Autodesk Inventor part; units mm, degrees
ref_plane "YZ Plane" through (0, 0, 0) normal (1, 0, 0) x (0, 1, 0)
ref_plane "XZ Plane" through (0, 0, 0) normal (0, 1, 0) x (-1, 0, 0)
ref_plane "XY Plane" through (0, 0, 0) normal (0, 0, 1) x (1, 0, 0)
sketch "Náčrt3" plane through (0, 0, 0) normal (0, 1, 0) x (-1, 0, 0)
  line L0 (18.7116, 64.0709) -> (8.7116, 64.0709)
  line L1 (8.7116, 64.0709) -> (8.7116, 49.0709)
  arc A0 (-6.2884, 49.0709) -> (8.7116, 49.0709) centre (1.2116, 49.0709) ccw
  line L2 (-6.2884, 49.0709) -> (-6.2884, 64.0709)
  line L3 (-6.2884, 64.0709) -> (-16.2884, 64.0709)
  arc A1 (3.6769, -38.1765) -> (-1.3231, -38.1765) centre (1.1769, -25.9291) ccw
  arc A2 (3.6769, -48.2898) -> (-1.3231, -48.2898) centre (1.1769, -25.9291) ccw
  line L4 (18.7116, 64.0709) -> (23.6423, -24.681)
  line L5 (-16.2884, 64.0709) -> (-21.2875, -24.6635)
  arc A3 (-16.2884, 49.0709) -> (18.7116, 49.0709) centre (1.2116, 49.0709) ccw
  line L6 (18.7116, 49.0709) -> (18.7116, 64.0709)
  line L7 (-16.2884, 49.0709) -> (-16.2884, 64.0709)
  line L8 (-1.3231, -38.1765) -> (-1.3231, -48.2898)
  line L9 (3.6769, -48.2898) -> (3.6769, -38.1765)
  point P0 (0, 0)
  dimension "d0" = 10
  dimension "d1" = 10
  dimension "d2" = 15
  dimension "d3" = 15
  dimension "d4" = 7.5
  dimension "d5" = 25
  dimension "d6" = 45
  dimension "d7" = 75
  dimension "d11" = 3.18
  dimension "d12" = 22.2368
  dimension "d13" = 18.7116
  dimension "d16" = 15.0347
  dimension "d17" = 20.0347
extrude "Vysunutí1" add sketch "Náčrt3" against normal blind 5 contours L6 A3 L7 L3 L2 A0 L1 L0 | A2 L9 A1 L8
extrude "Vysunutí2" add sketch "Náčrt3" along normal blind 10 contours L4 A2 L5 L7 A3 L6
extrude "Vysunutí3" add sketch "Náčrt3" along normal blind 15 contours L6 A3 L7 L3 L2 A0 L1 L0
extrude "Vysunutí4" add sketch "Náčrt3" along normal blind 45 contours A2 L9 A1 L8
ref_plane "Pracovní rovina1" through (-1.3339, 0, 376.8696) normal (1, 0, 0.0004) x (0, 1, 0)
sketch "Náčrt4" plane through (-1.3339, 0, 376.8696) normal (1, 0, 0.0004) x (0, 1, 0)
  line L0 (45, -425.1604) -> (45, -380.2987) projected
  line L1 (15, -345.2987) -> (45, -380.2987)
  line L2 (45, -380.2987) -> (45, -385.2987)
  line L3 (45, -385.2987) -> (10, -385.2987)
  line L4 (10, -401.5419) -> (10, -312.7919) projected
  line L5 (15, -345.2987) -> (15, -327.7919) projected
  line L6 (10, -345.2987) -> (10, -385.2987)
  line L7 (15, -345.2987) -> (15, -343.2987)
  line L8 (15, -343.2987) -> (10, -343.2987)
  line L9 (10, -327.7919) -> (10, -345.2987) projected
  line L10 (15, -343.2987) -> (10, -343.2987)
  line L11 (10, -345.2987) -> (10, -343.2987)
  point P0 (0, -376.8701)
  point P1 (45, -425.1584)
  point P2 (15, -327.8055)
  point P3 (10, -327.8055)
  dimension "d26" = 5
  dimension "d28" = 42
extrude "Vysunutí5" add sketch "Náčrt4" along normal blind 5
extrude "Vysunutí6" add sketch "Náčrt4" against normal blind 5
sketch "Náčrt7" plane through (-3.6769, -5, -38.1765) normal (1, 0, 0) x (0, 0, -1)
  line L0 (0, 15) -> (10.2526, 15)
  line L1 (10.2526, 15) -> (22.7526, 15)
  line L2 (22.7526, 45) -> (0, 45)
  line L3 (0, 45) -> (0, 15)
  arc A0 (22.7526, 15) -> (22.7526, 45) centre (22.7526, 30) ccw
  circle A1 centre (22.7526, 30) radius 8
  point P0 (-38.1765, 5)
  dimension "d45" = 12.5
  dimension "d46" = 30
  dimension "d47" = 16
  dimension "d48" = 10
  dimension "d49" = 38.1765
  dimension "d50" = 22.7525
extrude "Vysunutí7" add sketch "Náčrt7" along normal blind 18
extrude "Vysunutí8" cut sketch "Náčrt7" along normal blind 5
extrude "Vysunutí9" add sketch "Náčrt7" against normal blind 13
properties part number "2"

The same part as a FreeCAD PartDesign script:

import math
import FreeCAD as App
import Part
import Sketcher

V = App.Vector
Q = App.Units.Quantity

doc = App.newDocument("Part")
body = doc.addObject("PartDesign::Body", "Body")
body.AllowCompound = True

sketch1 = body.newObject("Sketcher::SketchObject", "Sketch")
sketch1.AttachmentSupport = (doc.getObject("XZ_Plane"), [""])
sketch1.MapMode = "FlatFace"
sketch1.addGeometry([
    Part.LineSegment(V(-19, 49, 0), V(-19, 64, 0)),
    Part.LineSegment(V(-19, 64, 0), V(-9, 64, 0)),
    Part.LineSegment(V(-9, 64, 0), V(-9, 49, 0)),
    Part.ArcOfCircle(Part.Circle(V(-1, 49, 0), V(0, 0, 1), 8), math.radians(180), math.radians(360)),
    Part.LineSegment(V(6, 49, 0), V(6, 64, 0)),
    Part.LineSegment(V(6, 64, 0), V(16, 64, 0)),
    Part.LineSegment(V(16, 64, 0), V(16, 49, 0)),
    Part.ArcOfCircle(Part.Circle(V(-1, 49, 0), V(0, 0, 1), 18), math.radians(180), math.radians(360)),
    Part.ArcOfCircle(Part.Circle(V(-1, -26, 0), V(0, 0, 1), 23), math.radians(-84), math.radians(264)),
    Part.LineSegment(V(1, -48, 0), V(1, -38, 0)),
    Part.ArcOfCircle(Part.Circle(V(-1, -26, 0), V(0, 0, 1), 12), math.radians(-78), math.radians(258)),
    Part.LineSegment(V(-4, -38, 0), V(-4, -48, 0)),
], False)
sketch1.addConstraint([
    Sketcher.Constraint("Coincident", 0, 2, 1, 1),
    Sketcher.Constraint("Coincident", 1, 2, 2, 1),
    Sketcher.Constraint("Tangent", 2, 2, 3, 1),
    Sketcher.Constraint("Tangent", 3, 2, 4, 1),
    Sketcher.Constraint("Coincident", 4, 2, 5, 1),
    Sketcher.Constraint("Coincident", 5, 2, 6, 1),
    Sketcher.Constraint("Tangent", 6, 2, 7, 2),
    Sketcher.Constraint("Tangent", 7, 1, 0, 1),
    Sketcher.Constraint("Coincident", 8, 1, 9, 1),
    Sketcher.Constraint("Coincident", 9, 2, 10, 1),
    Sketcher.Constraint("Coincident", 10, 2, 11, 1),
    Sketcher.Constraint("Coincident", 11, 2, 8, 2),
    Sketcher.Constraint("Vertical", 0),
    Sketcher.Constraint("Horizontal", 1),
    Sketcher.Constraint("Vertical", 2),
    Sketcher.Constraint("Vertical", 4),
    Sketcher.Constraint("Horizontal", 5),
    Sketcher.Constraint("Vertical", 6),
    Sketcher.Constraint("Vertical", 9),
    Sketcher.Constraint("Vertical", 11),
    Sketcher.Constraint("Coincident", 7, 3, 3, 3),
    Sketcher.Constraint("Coincident", 10, 3, 8, 3),
    Sketcher.Constraint("Horizontal", 1, 2, 4, 2),
    Sketcher.Constraint("Horizontal", 9, 2, 10, 2),
    Sketcher.Constraint("Radius", 3, Q("7.5 mm")),
    Sketcher.Constraint("Radius", 8, Q("22.5 mm")),
    Sketcher.Constraint("Radius", 10, Q("12.5 mm")),
    Sketcher.Constraint("DistanceX", 1, 1, 1, 2, Q("10 mm")),
    Sketcher.Constraint("DistanceY", 0, 1, 0, 2, Q("15 mm")),
    Sketcher.Constraint("DistanceY", 8, 3, 3, 3, Q("75 mm")),
    Sketcher.Constraint("DistanceX", 10, 2, 9, 2, Q("5 mm")),
    Sketcher.Constraint("DistanceX", 0, 2, -1, 1, Q("18.7116 mm")),
    Sketcher.Constraint("DistanceY", -1, 1, 3, 3, Q("49.071 mm")),
    Sketcher.Constraint("DistanceX", 8, 3, -1, 1, Q("1.177 mm")),
])
pad1 = body.newObject("PartDesign::Pad", "Pad")
pad1.Profile = sketch1
pad1.Length = 5

sketch2 = body.newObject("Sketcher::SketchObject", "Sketch001")
sketch2.AttachmentSupport = (doc.getObject("XZ_Plane"), [""])
sketch2.MapMode = "FlatFace"
sketch2.addGeometry([
    Part.LineSegment(V(-24, -25, 0), V(-19, 64, 0)),
    Part.LineSegment(V(-19, 64, 0), V(-19, 49, 0)),
    Part.ArcOfCircle(Part.Circle(V(-1, 49, 0), V(0, 0, 1), 18), math.radians(180), math.radians(360)),
    Part.LineSegment(V(16, 49, 0), V(16, 64, 0)),
    Part.LineSegment(V(16, 64, 0), V(21, -25, 0)),
    Part.ArcOfCircle(Part.Circle(V(-1, -26, 0), V(0, 0, 1), 23), math.radians(3), math.radians(177)),
], False)
sketch2.addConstraint([
    Sketcher.Constraint("Coincident", 0, 2, 1, 1),
    Sketcher.Constraint("Tangent", 1, 2, 2, 1),
    Sketcher.Constraint("Tangent", 2, 2, 3, 1),
    Sketcher.Constraint("Coincident", 3, 2, 4, 1),
    Sketcher.Constraint("Tangent", 4, 2, 5, 1),
    Sketcher.Constraint("Tangent", 5, 2, 0, 1),
    Sketcher.Constraint("Vertical", 1),
    Sketcher.Constraint("Vertical", 3),
    Sketcher.Constraint("Horizontal", 0, 2, 3, 2),
    Sketcher.Constraint("Radius", 5, Q("22.5 mm")),
    Sketcher.Constraint("DistanceY", 1, 2, 1, 1, Q("15 mm")),
    Sketcher.Constraint("DistanceY", 5, 3, 2, 3, Q("75 mm")),
    Sketcher.Constraint("Radius", 2, Q("17.5 mm")),
    Sketcher.Constraint("DistanceX", 0, 2, -1, 1, Q("18.7116 mm")),
    Sketcher.Constraint("Angle", 0, Q("86.8201 deg")),
    Sketcher.Constraint("DistanceY", -1, 1, 2, 3, Q("49.071 mm")),
])
pad2 = body.newObject("PartDesign::Pad", "Pad001")
pad2.Profile = sketch2
pad2.Length = 10
pad2.Reversed = True

sketch3 = body.newObject("Sketcher::SketchObject", "Sketch002")
sketch3.AttachmentSupport = (doc.getObject("XZ_Plane"), [""])
sketch3.MapMode = "FlatFace"
sketch3.addGeometry([
    Part.LineSegment(V(-19, 49, 0), V(-19, 64, 0)),
    Part.LineSegment(V(-19, 64, 0), V(-9, 64, 0)),
    Part.LineSegment(V(-9, 64, 0), V(-9, 49, 0)),
    Part.ArcOfCircle(Part.Circle(V(-1, 49, 0), V(0, 0, 1), 8), math.radians(180), math.radians(360)),
    Part.LineSegment(V(6, 49, 0), V(6, 64, 0)),
    Part.LineSegment(V(6, 64, 0), V(16, 64, 0)),
    Part.LineSegment(V(16, 64, 0), V(16, 49, 0)),
    Part.ArcOfCircle(Part.Circle(V(-1, 49, 0), V(0, 0, 1), 18), math.radians(180), math.radians(360)),
], False)
sketch3.addConstraint([
    Sketcher.Constraint("Coincident", 0, 2, 1, 1),
    Sketcher.Constraint("Coincident", 1, 2, 2, 1),
    Sketcher.Constraint("Tangent", 2, 2, 3, 1),
    Sketcher.Constraint("Tangent", 3, 2, 4, 1),
    Sketcher.Constraint("Coincident", 4, 2, 5, 1),
    Sketcher.Constraint("Coincident", 5, 2, 6, 1),
    Sketcher.Constraint("Tangent", 6, 2, 7, 2),
    Sketcher.Constraint("Tangent", 7, 1, 0, 1),
    Sketcher.Constraint("Vertical", 0),
    Sketcher.Constraint("Horizontal", 1),
    Sketcher.Constraint("Vertical", 2),
    Sketcher.Constraint("Vertical", 4),
    Sketcher.Constraint("Horizontal", 5),
    Sketcher.Constraint("Vertical", 6),
    Sketcher.Constraint("Coincident", 7, 3, 3, 3),
    Sketcher.Constraint("Horizontal", 1, 2, 4, 2),
    Sketcher.Constraint("Radius", 3, Q("7.5 mm")),
    Sketcher.Constraint("DistanceX", 1, 1, 1, 2, Q("10 mm")),
    Sketcher.Constraint("DistanceY", 0, 1, 0, 2, Q("15 mm")),
    Sketcher.Constraint("DistanceX", 0, 2, -1, 1, Q("18.7116 mm")),
    Sketcher.Constraint("DistanceY", -1, 1, 3, 3, Q("49.071 mm")),
])
pad3 = body.newObject("PartDesign::Pad", "Pad002")
pad3.Profile = sketch3
pad3.Length = 15
pad3.Reversed = True

sketch4 = body.newObject("Sketcher::SketchObject", "Sketch003")
sketch4.AttachmentSupport = (doc.getObject("XZ_Plane"), [""])
sketch4.MapMode = "FlatFace"
sketch4.addGeometry([
    Part.ArcOfCircle(Part.Circle(V(-1, -26, 0), V(0, 0, 1), 23), math.radians(-84), math.radians(264)),
    Part.LineSegment(V(1, -48, 0), V(1, -38, 0)),
    Part.ArcOfCircle(Part.Circle(V(-1, -26, 0), V(0, 0, 1), 12), math.radians(-78), math.radians(258)),
    Part.LineSegment(V(-4, -38, 0), V(-4, -48, 0)),
], False)
sketch4.addConstraint([
    Sketcher.Constraint("Coincident", 0, 1, 1, 1),
    Sketcher.Constraint("Coincident", 1, 2, 2, 1),
    Sketcher.Constraint("Coincident", 2, 2, 3, 1),
    Sketcher.Constraint("Coincident", 3, 2, 0, 2),
    Sketcher.Constraint("Vertical", 1),
    Sketcher.Constraint("Vertical", 3),
    Sketcher.Constraint("Coincident", 2, 3, 0, 3),
    Sketcher.Constraint("Horizontal", 1, 2, 2, 2),
    Sketcher.Constraint("Radius", 0, Q("22.5 mm")),
    Sketcher.Constraint("Radius", 2, Q("12.5 mm")),
    Sketcher.Constraint("DistanceX", 2, 2, 1, 2, Q("5 mm")),
    Sketcher.Constraint("DistanceX", 0, 3, -1, 1, Q("1.177 mm")),
    Sketcher.Constraint("DistanceY", 0, 3, -1, 1, Q("25.929 mm")),
])
pad4 = body.newObject("PartDesign::Pad", "Pad003")
pad4.Profile = sketch4
pad4.Length = 45
pad4.Reversed = True

sketch5 = body.newObject("Sketcher::SketchObject", "Sketch004")
sketch5.Placement = App.Placement(V(-1.3339, 0, 376.8696), App.Rotation(V(0, 1, 0), V(-0.0004, 0, 0.99999992), V(0.99999992, 0, 0.0004), "ZXY"))
sketch5.addGeometry([
    Part.LineSegment(V(10, -385.3, 0), V(45, -385.3, 0)),
    Part.LineSegment(V(45, -385.3, 0), V(45, -380.3, 0)),
    Part.LineSegment(V(45, -380.3, 0), V(15, -345.3, 0)),
    Part.LineSegment(V(15, -345.3, 0), V(15, -343.3, 0)),
    Part.LineSegment(V(15, -343.3, 0), V(10, -343.3, 0)),
    Part.LineSegment(V(10, -343.3, 0), V(10, -385.3, 0)),
], False)
sketch5.addConstraint([
    Sketcher.Constraint("Coincident", 0, 2, 1, 1),
    Sketcher.Constraint("Coincident", 1, 2, 2, 1),
    Sketcher.Constraint("Coincident", 2, 2, 3, 1),
    Sketcher.Constraint("Coincident", 3, 2, 4, 1),
    Sketcher.Constraint("Coincident", 4, 2, 5, 1),
    Sketcher.Constraint("Coincident", 5, 2, 0, 1),
    Sketcher.Constraint("Horizontal", 0),
    Sketcher.Constraint("Vertical", 1),
    Sketcher.Constraint("Vertical", 3),
    Sketcher.Constraint("Horizontal", 4),
    Sketcher.Constraint("Vertical", 5),
    Sketcher.Constraint("Equal", 4, 1),
    Sketcher.Constraint("DistanceX", 4, 2, 4, 1, Q("5 mm")),
    Sketcher.Constraint("DistanceY", 5, 2, 5, 1, Q("42 mm")),
    Sketcher.Constraint("DistanceX", 0, 1, 0, 2, Q("35 mm")),
    Sketcher.Constraint("DistanceY", 3, 1, 3, 2, Q("2 mm")),
    Sketcher.Constraint("DistanceX", -1, 1, 0, 2, Q("45 mm")),
    Sketcher.Constraint("DistanceY", 0, 2, -1, 1, Q("385.2987 mm")),
])
pad5 = body.newObject("PartDesign::Pad", "Pad004")
pad5.Profile = sketch5
pad5.Length = 5

sketch6 = body.newObject("Sketcher::SketchObject", "Sketch005")
sketch6.Placement = App.Placement(V(-1.3339, 0, 376.8696), App.Rotation(V(0, 1, 0), V(-0.0004, 0, 0.99999992), V(0.99999992, 0, 0.0004), "ZXY"))
sketch6.addGeometry([
    Part.LineSegment(V(10, -385.3, 0), V(45, -385.3, 0)),
    Part.LineSegment(V(45, -385.3, 0), V(45, -380.3, 0)),
    Part.LineSegment(V(45, -380.3, 0), V(15, -345.3, 0)),
    Part.LineSegment(V(15, -345.3, 0), V(15, -343.3, 0)),
    Part.LineSegment(V(15, -343.3, 0), V(10, -343.3, 0)),
    Part.LineSegment(V(10, -343.3, 0), V(10, -385.3, 0)),
], False)
sketch6.addConstraint([
    Sketcher.Constraint("Coincident", 0, 2, 1, 1),
    Sketcher.Constraint("Coincident", 1, 2, 2, 1),
    Sketcher.Constraint("Coincident", 2, 2, 3, 1),
    Sketcher.Constraint("Coincident", 3, 2, 4, 1),
    Sketcher.Constraint("Coincident", 4, 2, 5, 1),
    Sketcher.Constraint("Coincident", 5, 2, 0, 1),
    Sketcher.Constraint("Horizontal", 0),
    Sketcher.Constraint("Vertical", 1),
    Sketcher.Constraint("Vertical", 3),
    Sketcher.Constraint("Horizontal", 4),
    Sketcher.Constraint("Vertical", 5),
    Sketcher.Constraint("Equal", 4, 1),
    Sketcher.Constraint("DistanceX", 4, 2, 4, 1, Q("5 mm")),
    Sketcher.Constraint("DistanceY", 5, 2, 5, 1, Q("42 mm")),
    Sketcher.Constraint("DistanceX", 0, 1, 0, 2, Q("35 mm")),
    Sketcher.Constraint("DistanceY", 3, 1, 3, 2, Q("2 mm")),
    Sketcher.Constraint("DistanceX", -1, 1, 0, 2, Q("45 mm")),
    Sketcher.Constraint("DistanceY", 0, 2, -1, 1, Q("385.2987 mm")),
])
pad6 = body.newObject("PartDesign::Pad", "Pad005")
pad6.Profile = sketch6
pad6.Length = 5
pad6.Reversed = True

sketch7 = body.newObject("Sketcher::SketchObject", "Sketch006")
sketch7.AttachmentSupport = (doc.getObject("YZ_Plane"), [""])
sketch7.MapMode = "FlatFace"
sketch7.AttachmentOffset = App.Placement(V(0, 0, -3.6769), App.Rotation())
sketch7.addGeometry([
    Part.LineSegment(V(40, -38, 0), V(10, -38, 0)),
    Part.LineSegment(V(10, -38, 0), V(10, -61, 0)),
    Part.ArcOfCircle(Part.Circle(V(25, -61, 0), V(0, 0, 1), 15), math.radians(180), math.radians(360)),
    Part.LineSegment(V(40, -61, 0), V(40, -38, 0)),
    Part.Circle(V(25, -61, 0), V(0, 0, 1), 8),
], False)
sketch7.addConstraint([
    Sketcher.Constraint("Coincident", 0, 2, 1, 1),
    Sketcher.Constraint("Tangent", 1, 2, 2, 1),
    Sketcher.Constraint("Tangent", 2, 2, 3, 1),
    Sketcher.Constraint("Coincident", 3, 2, 0, 1),
    Sketcher.Constraint("Horizontal", 0),
    Sketcher.Constraint("Vertical", 1),
    Sketcher.Constraint("Vertical", 3),
    Sketcher.Constraint("Coincident", 4, 3, 2, 3),
    Sketcher.Constraint("Diameter", 4, Q("16 mm")),
    Sketcher.Constraint("Radius", 2, Q("15 mm")),
    Sketcher.Constraint("DistanceX", -1, 1, 0, 2, Q("10 mm")),
    Sketcher.Constraint("DistanceY", 1, 2, 1, 1, Q("22.7526 mm")),
    Sketcher.Constraint("DistanceY", 0, 2, -1, 1, Q("38.1765 mm")),
])
pad7 = body.newObject("PartDesign::Pad", "Pad006")
pad7.Profile = sketch7
pad7.Length = 18

sketch8 = body.newObject("Sketcher::SketchObject", "Sketch007")
sketch8.AttachmentSupport = (doc.getObject("YZ_Plane"), [""])
sketch8.MapMode = "FlatFace"
sketch8.AttachmentOffset = App.Placement(V(0, 0, -3.6769), App.Rotation())
sketch8.addGeometry([
    Part.LineSegment(V(40, -38, 0), V(10, -38, 0)),
    Part.LineSegment(V(10, -38, 0), V(10, -61, 0)),
    Part.ArcOfCircle(Part.Circle(V(25, -61, 0), V(0, 0, 1), 15), math.radians(180), math.radians(360)),
    Part.LineSegment(V(40, -61, 0), V(40, -38, 0)),
    Part.Circle(V(25, -61, 0), V(0, 0, 1), 8),
], False)
sketch8.addConstraint([
    Sketcher.Constraint("Coincident", 0, 2, 1, 1),
    Sketcher.Constraint("Tangent", 1, 2, 2, 1),
    Sketcher.Constraint("Tangent", 2, 2, 3, 1),
    Sketcher.Constraint("Coincident", 3, 2, 0, 1),
    Sketcher.Constraint("Horizontal", 0),
    Sketcher.Constraint("Vertical", 1),
    Sketcher.Constraint("Vertical", 3),
    Sketcher.Constraint("Coincident", 4, 3, 2, 3),
    Sketcher.Constraint("Diameter", 4, Q("16 mm")),
    Sketcher.Constraint("Radius", 2, Q("15 mm")),
    Sketcher.Constraint("DistanceX", -1, 1, 0, 2, Q("10 mm")),
    Sketcher.Constraint("DistanceY", 1, 2, 1, 1, Q("22.7526 mm")),
    Sketcher.Constraint("DistanceY", 0, 2, -1, 1, Q("38.1765 mm")),
])
pocket1 = body.newObject("PartDesign::Pocket", "Pocket")
pocket1.Profile = sketch8
pocket1.Length = 5
pocket1.Reversed = True

sketch9 = body.newObject("Sketcher::SketchObject", "Sketch008")
sketch9.AttachmentSupport = (doc.getObject("YZ_Plane"), [""])
sketch9.MapMode = "FlatFace"
sketch9.AttachmentOffset = App.Placement(V(0, 0, -3.6769), App.Rotation())
sketch9.addGeometry([
    Part.LineSegment(V(40, -38, 0), V(10, -38, 0)),
    Part.LineSegment(V(10, -38, 0), V(10, -61, 0)),
    Part.ArcOfCircle(Part.Circle(V(25, -61, 0), V(0, 0, 1), 15), math.radians(180), math.radians(360)),
    Part.LineSegment(V(40, -61, 0), V(40, -38, 0)),
    Part.Circle(V(25, -61, 0), V(0, 0, 1), 8),
], False)
sketch9.addConstraint([
    Sketcher.Constraint("Coincident", 0, 2, 1, 1),
    Sketcher.Constraint("Tangent", 1, 2, 2, 1),
    Sketcher.Constraint("Tangent", 2, 2, 3, 1),
    Sketcher.Constraint("Coincident", 3, 2, 0, 1),
    Sketcher.Constraint("Horizontal", 0),
    Sketcher.Constraint("Vertical", 1),
    Sketcher.Constraint("Vertical", 3),
    Sketcher.Constraint("Coincident", 4, 3, 2, 3),
    Sketcher.Constraint("Diameter", 4, Q("16 mm")),
    Sketcher.Constraint("Radius", 2, Q("15 mm")),
    Sketcher.Constraint("DistanceX", -1, 1, 0, 2, Q("10 mm")),
    Sketcher.Constraint("DistanceY", 1, 2, 1, 1, Q("22.7526 mm")),
    Sketcher.Constraint("DistanceY", 0, 2, -1, 1, Q("38.1765 mm")),
])
pad8 = body.newObject("PartDesign::Pad", "Pad007")
pad8.Profile = sketch9
pad8.Length = 13
pad8.Reversed = True

doc.recompute()
